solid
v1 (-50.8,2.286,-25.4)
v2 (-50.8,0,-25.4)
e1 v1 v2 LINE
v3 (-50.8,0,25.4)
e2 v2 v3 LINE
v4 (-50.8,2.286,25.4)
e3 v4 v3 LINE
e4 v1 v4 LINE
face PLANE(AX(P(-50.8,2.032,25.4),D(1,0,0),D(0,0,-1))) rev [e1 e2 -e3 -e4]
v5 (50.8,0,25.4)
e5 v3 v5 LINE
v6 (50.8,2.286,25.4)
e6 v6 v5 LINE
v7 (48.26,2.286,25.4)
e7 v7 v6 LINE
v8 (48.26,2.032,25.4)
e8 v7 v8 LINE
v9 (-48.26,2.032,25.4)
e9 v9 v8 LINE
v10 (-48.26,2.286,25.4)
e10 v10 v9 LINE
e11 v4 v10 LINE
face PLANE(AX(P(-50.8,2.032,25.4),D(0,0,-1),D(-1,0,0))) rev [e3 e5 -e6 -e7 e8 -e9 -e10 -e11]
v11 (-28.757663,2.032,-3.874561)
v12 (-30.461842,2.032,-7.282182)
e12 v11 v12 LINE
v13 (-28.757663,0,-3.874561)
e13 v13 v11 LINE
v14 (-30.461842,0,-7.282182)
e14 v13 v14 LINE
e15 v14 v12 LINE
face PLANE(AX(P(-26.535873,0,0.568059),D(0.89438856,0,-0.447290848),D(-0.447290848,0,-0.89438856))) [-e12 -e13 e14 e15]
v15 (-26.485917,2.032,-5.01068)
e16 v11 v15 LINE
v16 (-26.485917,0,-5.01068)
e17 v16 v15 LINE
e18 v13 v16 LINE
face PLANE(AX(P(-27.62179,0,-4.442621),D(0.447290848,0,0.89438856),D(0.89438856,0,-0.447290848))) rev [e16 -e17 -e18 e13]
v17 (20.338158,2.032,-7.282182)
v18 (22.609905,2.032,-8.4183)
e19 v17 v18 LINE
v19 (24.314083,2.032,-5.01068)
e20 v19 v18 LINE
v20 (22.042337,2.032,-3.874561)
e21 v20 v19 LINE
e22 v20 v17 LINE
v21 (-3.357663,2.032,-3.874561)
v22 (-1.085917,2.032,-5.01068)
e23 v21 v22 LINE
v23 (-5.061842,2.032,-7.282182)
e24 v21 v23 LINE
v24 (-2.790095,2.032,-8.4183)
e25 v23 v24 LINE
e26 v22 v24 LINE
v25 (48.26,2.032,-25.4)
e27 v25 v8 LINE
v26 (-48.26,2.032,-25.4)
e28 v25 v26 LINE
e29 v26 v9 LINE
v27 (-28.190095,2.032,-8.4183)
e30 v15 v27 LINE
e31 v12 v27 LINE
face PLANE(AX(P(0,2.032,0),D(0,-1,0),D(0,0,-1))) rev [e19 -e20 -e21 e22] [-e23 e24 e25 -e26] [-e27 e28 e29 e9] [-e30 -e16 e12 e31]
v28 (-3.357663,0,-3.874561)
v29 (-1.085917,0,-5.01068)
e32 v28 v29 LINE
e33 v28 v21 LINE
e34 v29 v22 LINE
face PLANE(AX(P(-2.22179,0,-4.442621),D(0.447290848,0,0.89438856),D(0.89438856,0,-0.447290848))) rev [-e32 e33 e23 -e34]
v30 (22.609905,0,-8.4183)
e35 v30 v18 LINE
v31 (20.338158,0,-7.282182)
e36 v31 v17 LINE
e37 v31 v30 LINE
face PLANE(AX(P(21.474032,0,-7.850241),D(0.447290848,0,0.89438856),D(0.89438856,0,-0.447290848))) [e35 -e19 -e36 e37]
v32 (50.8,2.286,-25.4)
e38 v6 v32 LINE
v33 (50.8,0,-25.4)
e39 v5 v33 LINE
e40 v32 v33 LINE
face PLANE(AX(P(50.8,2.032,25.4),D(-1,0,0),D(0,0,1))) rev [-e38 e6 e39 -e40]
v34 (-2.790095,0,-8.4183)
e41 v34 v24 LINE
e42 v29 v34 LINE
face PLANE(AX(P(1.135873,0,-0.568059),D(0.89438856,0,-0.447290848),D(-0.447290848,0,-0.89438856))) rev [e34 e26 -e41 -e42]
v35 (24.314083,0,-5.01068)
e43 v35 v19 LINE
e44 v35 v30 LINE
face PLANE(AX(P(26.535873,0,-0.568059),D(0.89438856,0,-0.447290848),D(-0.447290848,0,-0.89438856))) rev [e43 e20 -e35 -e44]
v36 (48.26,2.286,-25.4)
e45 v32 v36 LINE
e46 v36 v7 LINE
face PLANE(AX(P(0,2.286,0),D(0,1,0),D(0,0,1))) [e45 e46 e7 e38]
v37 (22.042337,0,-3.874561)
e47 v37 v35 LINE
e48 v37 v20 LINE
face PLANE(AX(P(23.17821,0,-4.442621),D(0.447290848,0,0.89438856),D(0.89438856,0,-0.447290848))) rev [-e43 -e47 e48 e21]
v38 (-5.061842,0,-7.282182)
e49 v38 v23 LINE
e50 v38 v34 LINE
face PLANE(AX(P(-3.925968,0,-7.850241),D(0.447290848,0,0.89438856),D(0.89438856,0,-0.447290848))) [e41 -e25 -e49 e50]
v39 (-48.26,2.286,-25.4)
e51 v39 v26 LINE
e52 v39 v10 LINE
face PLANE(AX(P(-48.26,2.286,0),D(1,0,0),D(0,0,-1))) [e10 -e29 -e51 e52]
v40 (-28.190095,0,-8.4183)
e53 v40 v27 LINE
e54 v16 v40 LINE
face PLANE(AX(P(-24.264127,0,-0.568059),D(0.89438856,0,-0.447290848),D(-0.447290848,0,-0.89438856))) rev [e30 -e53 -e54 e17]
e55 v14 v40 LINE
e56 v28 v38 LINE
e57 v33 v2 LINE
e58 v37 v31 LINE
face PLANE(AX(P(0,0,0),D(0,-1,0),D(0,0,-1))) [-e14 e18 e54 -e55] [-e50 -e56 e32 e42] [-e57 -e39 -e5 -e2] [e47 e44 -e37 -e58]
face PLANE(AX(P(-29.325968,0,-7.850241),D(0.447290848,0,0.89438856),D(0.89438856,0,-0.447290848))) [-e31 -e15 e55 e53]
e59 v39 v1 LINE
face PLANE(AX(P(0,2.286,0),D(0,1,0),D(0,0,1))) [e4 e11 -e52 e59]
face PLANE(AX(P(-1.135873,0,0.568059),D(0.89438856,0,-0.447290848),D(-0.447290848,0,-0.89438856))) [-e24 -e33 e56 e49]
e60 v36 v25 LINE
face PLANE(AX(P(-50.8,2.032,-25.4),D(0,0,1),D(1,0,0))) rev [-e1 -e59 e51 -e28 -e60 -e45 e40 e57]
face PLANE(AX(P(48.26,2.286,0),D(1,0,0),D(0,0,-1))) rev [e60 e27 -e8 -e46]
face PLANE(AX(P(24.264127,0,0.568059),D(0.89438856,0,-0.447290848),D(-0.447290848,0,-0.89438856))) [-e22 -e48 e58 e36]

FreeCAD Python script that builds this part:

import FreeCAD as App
import Part
import Sketcher
Q = App.Units.Quantity


def add_polygon(sketch, points):
    """Adds a closed chain of lines whose ends are joined by coincident constraints."""
    first, n = sketch.GeometryCount, len(points)
    for a, b in zip(points, points[1:] + points[:1]):
        sketch.addGeometry(Part.LineSegment(App.Vector(*a, 0), App.Vector(*b, 0)), False)
    for i in range(n):
        sketch.addConstraint(Sketcher.Constraint("Coincident", first + i, 2, first + (i + 1) % n, 1))

doc = App.newDocument("Part")
body = doc.addObject("PartDesign::Body", "Body")

# Sketch on XZ plane
sketch1 = body.newObject("Sketcher::SketchObject", "Sketch")
sketch1.AttachmentSupport = (doc.getObject("XZ_Plane"), [""])
sketch1.MapMode = "FlatFace"
add_polygon(sketch1, [(-51, -25), (-51, 25), (51, 25), (51, -25)])  # lines 0-3
sketch1.addConstraint([
    Sketcher.Constraint("Vertical", 0),
    Sketcher.Constraint("Horizontal", 1),
    Sketcher.Constraint("Vertical", 2),
    Sketcher.Constraint("Horizontal", 3),
    Sketcher.Constraint("Symmetric", 0, 2, 2, 2, -1, 1),
    Sketcher.Constraint("DistanceX", 1, 1, 1, 2, Q("4 in")),
    Sketcher.Constraint("DistanceY", 0, 1, 0, 2, Q("2 in")),
])
pad1 = body.newObject("PartDesign::Pad", "Pad")
pad1.Profile = sketch1
pad1.Length = Q("0.08 in")
pad1.Reversed = True

# Sketch on XZ plane
sketch2 = body.newObject("Sketcher::SketchObject", "Sketch001")
sketch2.AttachmentSupport = (doc.getObject("XZ_Plane"), [""])
sketch2.MapMode = "FlatFace"
sketch2.AttachmentOffset = App.Placement(App.Vector(0, 0, -0.08 * 25.4), App.Rotation())
add_polygon(sketch2, [(-2.8, -8.4), (-5.1, -7.3), (-3.4, -3.9), (-1.1, -5)])  # lines 0-3
sketch2.addConstraint([
    Sketcher.Constraint("Perpendicular", 0, 1),
    Sketcher.Constraint("Perpendicular", 1, 2),
    Sketcher.Constraint("Perpendicular", 2, 3),
    Sketcher.Constraint("Distance", 0, Q("0.1 in")),
    Sketcher.Constraint("Distance", 1, Q("0.15 in")),
    Sketcher.Constraint("Angle", 0, Q("153.43 deg")),
    Sketcher.Constraint("DistanceY", 0, 2, -1, 1, Q("0.2867001 in")),
    Sketcher.Constraint("DistanceX", 0, 2, -1, 1, 5.061842),
])
pocket1 = body.newObject("PartDesign::Pocket", "Pocket")
pocket1.Profile = sketch2
pocket1.Type = "ThroughAll"
pocket1.Reversed = True
doc.recompute()

linearpattern = body.newObject("PartDesign::LinearPattern", "LinearPattern")
linearpattern.Originals = [pocket1]
linearpattern.Direction = (doc.getObject("X_Axis"), [""])
linearpattern.Mode = "offset"
linearpattern.Offset = Q("1 in")
linearpattern.Occurrences = 2
linearpattern.Reversed = True
body.Tip = linearpattern
doc.recompute()

linearpattern2 = body.newObject("PartDesign::LinearPattern", "LinearPattern001")
linearpattern2.Originals = [pocket1]
linearpattern2.Direction = (doc.getObject("X_Axis"), [""])
linearpattern2.Mode = "offset"
linearpattern2.Offset = Q("1 in")
linearpattern2.Occurrences = 2
body.Tip = linearpattern2

# Sketch on XZ plane
sketch3 = body.newObject("Sketcher::SketchObject", "Sketch002")
sketch3.AttachmentSupport = (doc.getObject("XZ_Plane"), [""])
sketch3.MapMode = "FlatFace"
sketch3.AttachmentOffset = App.Placement(App.Vector(0, 0, -0.08 * 25.4), App.Rotation())
add_polygon(sketch3, [(-50.8, -25.4), (-50.8, 25.4), (-48.3, 25.4), (-48.3, -25.4)])  # lines 0-3
add_polygon(sketch3, [(48.3, -25.4), (48.3, 25.4), (50.8, 25.4), (50.8, -25.4)])  # lines 4-7
sketch3.addConstraint([
    Sketcher.Constraint("Vertical", 0),
    Sketcher.Constraint("Horizontal", 1),
    Sketcher.Constraint("Vertical", 2),
    Sketcher.Constraint("Horizontal", 3),
    Sketcher.Constraint("Vertical", 4),
    Sketcher.Constraint("Horizontal", 5),
    Sketcher.Constraint("Vertical", 6),
    Sketcher.Constraint("Horizontal", 7),
    Sketcher.Constraint("Symmetric", 2, 2, 4, 2, -1, 1),
    Sketcher.Constraint("Symmetric", 0, 2, 6, 2, -1, 1),
    Sketcher.Constraint("Horizontal", 1, 2, 4, 2),
    Sketcher.Constraint("DistanceY", 0, 1, 0, 2, Q("2 in")),
    Sketcher.Constraint("DistanceX", 1, 1, 1, 2, Q("0.1 in")),
    Sketcher.Constraint("DistanceX", 0, 2, -1, 1, Q("2 in")),
])
pad2 = body.newObject("PartDesign::Pad", "Pad001")
pad2.Profile = sketch3
pad2.Length = Q("0.01 in")
pad2.Reversed = True

doc.recompute()
